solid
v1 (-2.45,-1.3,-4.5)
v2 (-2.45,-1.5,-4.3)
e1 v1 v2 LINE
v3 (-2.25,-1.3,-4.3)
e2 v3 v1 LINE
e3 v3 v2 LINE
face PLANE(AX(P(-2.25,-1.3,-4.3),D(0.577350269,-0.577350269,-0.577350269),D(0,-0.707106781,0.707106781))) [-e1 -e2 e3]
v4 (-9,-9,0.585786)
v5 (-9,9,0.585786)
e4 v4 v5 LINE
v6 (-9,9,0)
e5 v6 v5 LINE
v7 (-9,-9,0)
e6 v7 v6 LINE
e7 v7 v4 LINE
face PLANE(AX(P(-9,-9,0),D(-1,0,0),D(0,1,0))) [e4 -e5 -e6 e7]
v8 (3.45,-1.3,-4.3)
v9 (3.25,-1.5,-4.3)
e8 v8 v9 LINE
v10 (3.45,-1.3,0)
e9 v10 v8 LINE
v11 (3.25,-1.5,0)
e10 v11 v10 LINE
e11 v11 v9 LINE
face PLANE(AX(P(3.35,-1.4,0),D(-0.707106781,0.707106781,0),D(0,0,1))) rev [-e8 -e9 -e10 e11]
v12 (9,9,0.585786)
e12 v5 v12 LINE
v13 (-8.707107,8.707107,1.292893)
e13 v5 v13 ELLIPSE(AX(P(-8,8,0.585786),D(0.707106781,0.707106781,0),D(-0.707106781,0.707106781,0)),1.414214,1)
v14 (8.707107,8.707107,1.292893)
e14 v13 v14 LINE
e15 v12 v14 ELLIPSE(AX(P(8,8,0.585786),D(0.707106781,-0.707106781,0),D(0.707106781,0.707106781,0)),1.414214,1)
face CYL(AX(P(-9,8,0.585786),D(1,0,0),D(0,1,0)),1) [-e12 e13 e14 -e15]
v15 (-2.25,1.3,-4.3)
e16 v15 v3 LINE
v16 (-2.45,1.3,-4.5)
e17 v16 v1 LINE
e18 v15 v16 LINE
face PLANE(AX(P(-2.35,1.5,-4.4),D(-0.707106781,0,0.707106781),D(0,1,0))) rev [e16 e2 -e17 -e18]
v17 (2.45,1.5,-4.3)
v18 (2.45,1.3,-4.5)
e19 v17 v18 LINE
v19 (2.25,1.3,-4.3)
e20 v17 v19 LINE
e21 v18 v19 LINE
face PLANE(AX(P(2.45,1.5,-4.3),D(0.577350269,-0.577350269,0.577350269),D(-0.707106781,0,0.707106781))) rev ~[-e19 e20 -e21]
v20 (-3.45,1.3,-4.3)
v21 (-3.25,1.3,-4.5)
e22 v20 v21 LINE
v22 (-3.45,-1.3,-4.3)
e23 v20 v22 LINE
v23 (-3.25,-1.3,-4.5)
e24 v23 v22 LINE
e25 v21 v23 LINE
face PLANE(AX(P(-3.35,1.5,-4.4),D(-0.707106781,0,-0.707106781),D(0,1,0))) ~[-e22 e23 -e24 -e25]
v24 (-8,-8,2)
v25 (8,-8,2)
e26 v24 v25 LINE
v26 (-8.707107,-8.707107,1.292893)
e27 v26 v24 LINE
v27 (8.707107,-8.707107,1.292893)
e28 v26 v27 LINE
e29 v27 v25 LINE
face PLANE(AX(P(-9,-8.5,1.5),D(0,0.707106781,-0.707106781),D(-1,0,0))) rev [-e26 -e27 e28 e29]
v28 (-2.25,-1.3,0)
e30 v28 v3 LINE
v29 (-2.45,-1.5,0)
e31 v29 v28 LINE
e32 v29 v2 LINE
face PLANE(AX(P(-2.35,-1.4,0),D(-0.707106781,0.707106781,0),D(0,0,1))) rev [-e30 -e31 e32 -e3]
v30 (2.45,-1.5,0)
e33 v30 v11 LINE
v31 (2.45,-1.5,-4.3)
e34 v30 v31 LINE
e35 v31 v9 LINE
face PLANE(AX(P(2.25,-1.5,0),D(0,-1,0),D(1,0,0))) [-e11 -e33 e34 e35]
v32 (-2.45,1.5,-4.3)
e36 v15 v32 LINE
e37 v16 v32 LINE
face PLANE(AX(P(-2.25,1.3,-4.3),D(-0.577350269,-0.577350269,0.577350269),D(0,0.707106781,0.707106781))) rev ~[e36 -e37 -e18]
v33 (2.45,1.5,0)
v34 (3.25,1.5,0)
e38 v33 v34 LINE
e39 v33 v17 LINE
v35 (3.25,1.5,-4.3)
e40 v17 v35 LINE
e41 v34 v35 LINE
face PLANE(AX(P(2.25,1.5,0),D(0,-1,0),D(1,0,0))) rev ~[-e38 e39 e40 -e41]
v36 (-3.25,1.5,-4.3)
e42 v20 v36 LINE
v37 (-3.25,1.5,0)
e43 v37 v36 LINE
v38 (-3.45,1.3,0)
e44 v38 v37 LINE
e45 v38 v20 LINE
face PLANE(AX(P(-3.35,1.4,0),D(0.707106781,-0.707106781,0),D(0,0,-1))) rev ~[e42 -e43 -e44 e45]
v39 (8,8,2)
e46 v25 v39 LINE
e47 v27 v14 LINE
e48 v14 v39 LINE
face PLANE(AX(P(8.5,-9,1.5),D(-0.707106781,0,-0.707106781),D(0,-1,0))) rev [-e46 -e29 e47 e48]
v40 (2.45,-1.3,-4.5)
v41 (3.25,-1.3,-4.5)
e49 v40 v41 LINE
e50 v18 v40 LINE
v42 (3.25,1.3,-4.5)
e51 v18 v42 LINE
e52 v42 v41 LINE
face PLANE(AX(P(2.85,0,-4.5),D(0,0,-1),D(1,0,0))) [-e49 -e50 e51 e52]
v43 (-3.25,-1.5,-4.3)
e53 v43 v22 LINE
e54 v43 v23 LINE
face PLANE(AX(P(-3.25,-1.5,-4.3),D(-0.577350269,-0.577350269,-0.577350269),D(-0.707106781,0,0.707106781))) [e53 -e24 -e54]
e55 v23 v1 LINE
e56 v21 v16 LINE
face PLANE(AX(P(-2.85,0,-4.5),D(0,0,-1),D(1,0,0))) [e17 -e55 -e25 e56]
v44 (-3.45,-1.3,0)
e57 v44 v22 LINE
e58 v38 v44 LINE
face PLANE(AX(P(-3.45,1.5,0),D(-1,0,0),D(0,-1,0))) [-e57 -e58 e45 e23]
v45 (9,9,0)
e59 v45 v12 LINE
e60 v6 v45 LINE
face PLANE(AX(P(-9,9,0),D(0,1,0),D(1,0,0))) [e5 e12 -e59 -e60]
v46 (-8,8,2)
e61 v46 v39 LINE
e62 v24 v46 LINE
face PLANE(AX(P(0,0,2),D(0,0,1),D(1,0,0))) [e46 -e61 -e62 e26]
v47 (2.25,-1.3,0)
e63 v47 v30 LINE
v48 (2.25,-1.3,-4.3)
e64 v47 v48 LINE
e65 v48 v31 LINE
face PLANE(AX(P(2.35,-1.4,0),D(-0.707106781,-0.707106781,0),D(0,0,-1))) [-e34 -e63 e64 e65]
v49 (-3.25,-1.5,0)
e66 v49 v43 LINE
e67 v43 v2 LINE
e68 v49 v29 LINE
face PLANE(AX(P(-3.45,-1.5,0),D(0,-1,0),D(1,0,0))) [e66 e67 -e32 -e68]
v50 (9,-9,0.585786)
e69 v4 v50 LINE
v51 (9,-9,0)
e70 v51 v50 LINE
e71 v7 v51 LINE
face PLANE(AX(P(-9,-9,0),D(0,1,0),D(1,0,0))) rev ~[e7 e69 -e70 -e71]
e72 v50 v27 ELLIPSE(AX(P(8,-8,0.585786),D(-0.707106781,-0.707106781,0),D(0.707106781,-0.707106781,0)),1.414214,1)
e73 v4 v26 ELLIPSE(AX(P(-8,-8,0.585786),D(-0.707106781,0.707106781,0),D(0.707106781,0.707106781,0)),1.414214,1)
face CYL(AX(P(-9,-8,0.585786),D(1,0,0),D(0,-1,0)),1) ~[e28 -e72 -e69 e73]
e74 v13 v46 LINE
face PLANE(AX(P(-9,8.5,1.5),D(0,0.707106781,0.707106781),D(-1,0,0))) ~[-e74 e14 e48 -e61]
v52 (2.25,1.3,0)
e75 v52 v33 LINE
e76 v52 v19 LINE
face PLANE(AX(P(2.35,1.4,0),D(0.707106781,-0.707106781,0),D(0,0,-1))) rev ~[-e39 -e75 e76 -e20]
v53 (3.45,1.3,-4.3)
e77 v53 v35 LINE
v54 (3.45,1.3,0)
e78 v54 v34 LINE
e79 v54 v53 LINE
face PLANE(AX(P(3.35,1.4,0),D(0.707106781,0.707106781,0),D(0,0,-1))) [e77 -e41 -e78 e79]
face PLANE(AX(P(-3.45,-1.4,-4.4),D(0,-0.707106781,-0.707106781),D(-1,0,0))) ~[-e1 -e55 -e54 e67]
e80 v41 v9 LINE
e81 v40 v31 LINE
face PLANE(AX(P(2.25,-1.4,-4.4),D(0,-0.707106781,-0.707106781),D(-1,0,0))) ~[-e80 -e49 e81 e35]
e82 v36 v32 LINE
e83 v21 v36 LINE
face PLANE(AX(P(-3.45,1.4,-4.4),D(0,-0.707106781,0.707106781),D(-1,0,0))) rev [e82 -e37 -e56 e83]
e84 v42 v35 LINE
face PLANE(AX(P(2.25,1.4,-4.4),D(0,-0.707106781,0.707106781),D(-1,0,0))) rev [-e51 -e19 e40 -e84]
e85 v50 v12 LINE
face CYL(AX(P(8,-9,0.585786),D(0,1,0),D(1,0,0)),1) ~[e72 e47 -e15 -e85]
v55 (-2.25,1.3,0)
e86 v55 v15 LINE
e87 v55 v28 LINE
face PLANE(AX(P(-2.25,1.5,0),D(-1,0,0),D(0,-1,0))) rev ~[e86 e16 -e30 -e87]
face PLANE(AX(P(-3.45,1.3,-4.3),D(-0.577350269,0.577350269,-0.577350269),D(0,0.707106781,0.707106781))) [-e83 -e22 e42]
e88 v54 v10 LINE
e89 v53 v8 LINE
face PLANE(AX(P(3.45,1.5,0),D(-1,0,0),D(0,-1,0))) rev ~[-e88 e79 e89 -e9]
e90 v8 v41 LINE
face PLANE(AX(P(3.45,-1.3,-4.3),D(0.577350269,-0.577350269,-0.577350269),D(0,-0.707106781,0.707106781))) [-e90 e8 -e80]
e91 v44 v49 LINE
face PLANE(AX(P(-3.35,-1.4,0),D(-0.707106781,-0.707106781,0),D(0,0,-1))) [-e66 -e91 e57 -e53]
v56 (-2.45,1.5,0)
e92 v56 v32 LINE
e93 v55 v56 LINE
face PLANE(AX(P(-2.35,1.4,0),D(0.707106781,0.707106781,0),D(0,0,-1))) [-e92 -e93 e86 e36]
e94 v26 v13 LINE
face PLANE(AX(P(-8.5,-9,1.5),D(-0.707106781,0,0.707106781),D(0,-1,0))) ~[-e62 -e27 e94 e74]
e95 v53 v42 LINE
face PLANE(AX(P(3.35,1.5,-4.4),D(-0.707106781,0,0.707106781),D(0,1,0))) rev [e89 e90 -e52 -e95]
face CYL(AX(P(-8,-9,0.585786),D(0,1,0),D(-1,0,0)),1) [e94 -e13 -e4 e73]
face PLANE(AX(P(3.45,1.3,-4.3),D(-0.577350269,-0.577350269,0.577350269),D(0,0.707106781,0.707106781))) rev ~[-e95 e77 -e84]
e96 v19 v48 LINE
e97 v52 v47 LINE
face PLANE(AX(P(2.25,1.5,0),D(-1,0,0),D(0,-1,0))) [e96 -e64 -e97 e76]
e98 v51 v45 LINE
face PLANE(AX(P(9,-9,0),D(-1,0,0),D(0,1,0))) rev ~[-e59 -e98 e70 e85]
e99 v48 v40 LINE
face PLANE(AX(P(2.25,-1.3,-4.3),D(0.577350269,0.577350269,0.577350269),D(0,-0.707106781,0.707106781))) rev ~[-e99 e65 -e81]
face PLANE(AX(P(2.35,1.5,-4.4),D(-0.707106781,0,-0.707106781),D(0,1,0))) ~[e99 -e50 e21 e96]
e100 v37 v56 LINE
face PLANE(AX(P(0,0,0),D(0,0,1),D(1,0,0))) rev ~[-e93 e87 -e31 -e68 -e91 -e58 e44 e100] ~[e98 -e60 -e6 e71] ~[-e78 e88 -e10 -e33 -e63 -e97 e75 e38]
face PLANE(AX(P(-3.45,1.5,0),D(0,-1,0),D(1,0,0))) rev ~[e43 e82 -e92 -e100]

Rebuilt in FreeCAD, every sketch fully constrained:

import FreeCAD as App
import Part
import Sketcher

V = App.Vector


def edges_at(feature, points):
    """Names of the edges that pass closest to the given points."""
    edges = feature.Shape.Edges
    near = lambda p: min(range(len(edges)), key=lambda i: edges[i].distToShape(Part.Vertex(*p))[0])
    return sorted({f"Edge{near(p) + 1}" for p in points})

doc = App.newDocument("Part")
body = doc.addObject("PartDesign::Body", "Body")

# Sketch on XY plane
sketch1 = body.newObject("Sketcher::SketchObject", "Sketch")
sketch1.AttachmentSupport = (doc.getObject("XY_Plane"), [""])
sketch1.MapMode = "FlatFace"
sketch1.addGeometry([
    Part.LineSegment(V(-9, 9, 0), V(-9, -9, 0)),
    Part.LineSegment(V(-9, -9, 0), V(9, -9, 0)),
    Part.LineSegment(V(9, -9, 0), V(9, 9, 0)),
    Part.LineSegment(V(9, 9, 0), V(-9, 9, 0)),
], False)
sketch1.addConstraint([
    Sketcher.Constraint("Coincident", 0, 2, 1, 1),
    Sketcher.Constraint("Coincident", 1, 2, 2, 1),
    Sketcher.Constraint("Coincident", 2, 2, 3, 1),
    Sketcher.Constraint("Coincident", 3, 2, 0, 1),
    Sketcher.Constraint("Vertical", 0),
    Sketcher.Constraint("Horizontal", 1),
    Sketcher.Constraint("Vertical", 2),
    Sketcher.Constraint("Horizontal", 3),
    Sketcher.Constraint("Symmetric", 0, 2, 2, 2, -1, 1),
    Sketcher.Constraint("Equal", 3, 0),
    Sketcher.Constraint("DistanceX", 1, 1, 1, 2, 18.0),
])
pad1 = body.newObject("PartDesign::Pad", "Pad")
pad1.Profile = sketch1
pad1.Length = 2
doc.recompute()

chamfer = body.newObject("PartDesign::Chamfer", "Chamfer")
chamfer.Base = (pad1, edges_at(pad1, [
    (-9, 0, 2),
    (0, 9, 2),
    (9, 0, 2),
    (0, -9, 2),
]))
chamfer.Size = 1
doc.recompute()

fillet = body.newObject("PartDesign::Fillet", "Fillet")
fillet.Base = (chamfer, edges_at(chamfer, [
    (0, -9, 1),
    (9, 0, 1),
    (-9, 0, 1),
    (0, 9, 1),
]))
fillet.Radius = 1

# Sketch on XY plane
sketch2 = body.newObject("Sketcher::SketchObject", "Sketch001")
sketch2.AttachmentSupport = (doc.getObject("XY_Plane"), [""])
sketch2.MapMode = "FlatFace"
sketch2.addGeometry([
    Part.LineSegment(V(-3.5, -1.5, 0), V(-3.5, 1.5, 0)),  # 0
    Part.LineSegment(V(-3.5, 1.5, 0), V(-2.2, 1.5, 0)),  # 1
    Part.LineSegment(V(-2.2, 1.5, 0), V(-2.2, -1.5, 0)),  # 2
    Part.LineSegment(V(-2.2, -1.5, 0), V(-3.5, -1.5, 0)),  # 3
    Part.LineSegment(V(2.2, -1.5, 0), V(2.2, 1.5, 0)),  # 4
    Part.LineSegment(V(2.2, 1.5, 0), V(3.5, 1.5, 0)),  # 5
    Part.LineSegment(V(3.5, 1.5, 0), V(3.5, -1.5, 0)),  # 6
    Part.LineSegment(V(3.5, -1.5, 0), V(2.2, -1.5, 0)),  # 7
], False)
sketch2.addConstraint([
    Sketcher.Constraint("Coincident", 0, 2, 1, 1),
    Sketcher.Constraint("Coincident", 1, 2, 2, 1),
    Sketcher.Constraint("Coincident", 2, 2, 3, 1),
    Sketcher.Constraint("Coincident", 3, 2, 0, 1),
    Sketcher.Constraint("Coincident", 4, 2, 5, 1),
    Sketcher.Constraint("Coincident", 5, 2, 6, 1),
    Sketcher.Constraint("Coincident", 6, 2, 7, 1),
    Sketcher.Constraint("Coincident", 7, 2, 4, 1),
    Sketcher.Constraint("Vertical", 0),
    Sketcher.Constraint("Horizontal", 1),
    Sketcher.Constraint("Vertical", 2),
    Sketcher.Constraint("Horizontal", 3),
    Sketcher.Constraint("Vertical", 4),
    Sketcher.Constraint("Horizontal", 5),
    Sketcher.Constraint("Vertical", 6),
    Sketcher.Constraint("Horizontal", 7),
    Sketcher.Constraint("Symmetric", 2, 2, 4, 2, -1, 1),
    Sketcher.Constraint("Symmetric", 0, 2, 6, 2, -1, 1),
    Sketcher.Constraint("Horizontal", 1, 2, 4, 2),
    Sketcher.Constraint("DistanceY", 0, 1, 0, 2, 3.0),
    Sketcher.Constraint("DistanceX", 1, 1, 1, 2, 1.2),
    Sketcher.Constraint("DistanceX", 1, 2, 4, 2, 4.5),
])
pad2 = body.newObject("PartDesign::Pad", "Pad001")
pad2.Profile = sketch2
pad2.Length = 4.5
pad2.Reversed = True
doc.recompute()

chamfer2 = body.newObject("PartDesign::Chamfer", "Chamfer001")
chamfer2.Base = (pad2, edges_at(pad2, [
    (-2.85, 1.5, -4.5),
    (-3.45, 0, -4.5),
    (-2.85, -1.5, -4.5),
    (-2.25, 0, -4.5),
    (-3.45, 1.5, -2.25),
    (-2.25, 1.5, -2.25),
    (-3.45, -1.5, -2.25),
    (-2.25, -1.5, -2.25),
    (2.85, -1.5, -4.5),
    (2.25, 0, -4.5),
    (2.85, 1.5, -4.5),
    (3.45, 0, -4.5),
    (3.45, -1.5, -2.25),
    (2.25, -1.5, -2.25),
    (2.25, 1.5, -2.25),
    (3.45, 1.5, -2.25),
]))
chamfer2.Size = 0.2

doc.recompute()
